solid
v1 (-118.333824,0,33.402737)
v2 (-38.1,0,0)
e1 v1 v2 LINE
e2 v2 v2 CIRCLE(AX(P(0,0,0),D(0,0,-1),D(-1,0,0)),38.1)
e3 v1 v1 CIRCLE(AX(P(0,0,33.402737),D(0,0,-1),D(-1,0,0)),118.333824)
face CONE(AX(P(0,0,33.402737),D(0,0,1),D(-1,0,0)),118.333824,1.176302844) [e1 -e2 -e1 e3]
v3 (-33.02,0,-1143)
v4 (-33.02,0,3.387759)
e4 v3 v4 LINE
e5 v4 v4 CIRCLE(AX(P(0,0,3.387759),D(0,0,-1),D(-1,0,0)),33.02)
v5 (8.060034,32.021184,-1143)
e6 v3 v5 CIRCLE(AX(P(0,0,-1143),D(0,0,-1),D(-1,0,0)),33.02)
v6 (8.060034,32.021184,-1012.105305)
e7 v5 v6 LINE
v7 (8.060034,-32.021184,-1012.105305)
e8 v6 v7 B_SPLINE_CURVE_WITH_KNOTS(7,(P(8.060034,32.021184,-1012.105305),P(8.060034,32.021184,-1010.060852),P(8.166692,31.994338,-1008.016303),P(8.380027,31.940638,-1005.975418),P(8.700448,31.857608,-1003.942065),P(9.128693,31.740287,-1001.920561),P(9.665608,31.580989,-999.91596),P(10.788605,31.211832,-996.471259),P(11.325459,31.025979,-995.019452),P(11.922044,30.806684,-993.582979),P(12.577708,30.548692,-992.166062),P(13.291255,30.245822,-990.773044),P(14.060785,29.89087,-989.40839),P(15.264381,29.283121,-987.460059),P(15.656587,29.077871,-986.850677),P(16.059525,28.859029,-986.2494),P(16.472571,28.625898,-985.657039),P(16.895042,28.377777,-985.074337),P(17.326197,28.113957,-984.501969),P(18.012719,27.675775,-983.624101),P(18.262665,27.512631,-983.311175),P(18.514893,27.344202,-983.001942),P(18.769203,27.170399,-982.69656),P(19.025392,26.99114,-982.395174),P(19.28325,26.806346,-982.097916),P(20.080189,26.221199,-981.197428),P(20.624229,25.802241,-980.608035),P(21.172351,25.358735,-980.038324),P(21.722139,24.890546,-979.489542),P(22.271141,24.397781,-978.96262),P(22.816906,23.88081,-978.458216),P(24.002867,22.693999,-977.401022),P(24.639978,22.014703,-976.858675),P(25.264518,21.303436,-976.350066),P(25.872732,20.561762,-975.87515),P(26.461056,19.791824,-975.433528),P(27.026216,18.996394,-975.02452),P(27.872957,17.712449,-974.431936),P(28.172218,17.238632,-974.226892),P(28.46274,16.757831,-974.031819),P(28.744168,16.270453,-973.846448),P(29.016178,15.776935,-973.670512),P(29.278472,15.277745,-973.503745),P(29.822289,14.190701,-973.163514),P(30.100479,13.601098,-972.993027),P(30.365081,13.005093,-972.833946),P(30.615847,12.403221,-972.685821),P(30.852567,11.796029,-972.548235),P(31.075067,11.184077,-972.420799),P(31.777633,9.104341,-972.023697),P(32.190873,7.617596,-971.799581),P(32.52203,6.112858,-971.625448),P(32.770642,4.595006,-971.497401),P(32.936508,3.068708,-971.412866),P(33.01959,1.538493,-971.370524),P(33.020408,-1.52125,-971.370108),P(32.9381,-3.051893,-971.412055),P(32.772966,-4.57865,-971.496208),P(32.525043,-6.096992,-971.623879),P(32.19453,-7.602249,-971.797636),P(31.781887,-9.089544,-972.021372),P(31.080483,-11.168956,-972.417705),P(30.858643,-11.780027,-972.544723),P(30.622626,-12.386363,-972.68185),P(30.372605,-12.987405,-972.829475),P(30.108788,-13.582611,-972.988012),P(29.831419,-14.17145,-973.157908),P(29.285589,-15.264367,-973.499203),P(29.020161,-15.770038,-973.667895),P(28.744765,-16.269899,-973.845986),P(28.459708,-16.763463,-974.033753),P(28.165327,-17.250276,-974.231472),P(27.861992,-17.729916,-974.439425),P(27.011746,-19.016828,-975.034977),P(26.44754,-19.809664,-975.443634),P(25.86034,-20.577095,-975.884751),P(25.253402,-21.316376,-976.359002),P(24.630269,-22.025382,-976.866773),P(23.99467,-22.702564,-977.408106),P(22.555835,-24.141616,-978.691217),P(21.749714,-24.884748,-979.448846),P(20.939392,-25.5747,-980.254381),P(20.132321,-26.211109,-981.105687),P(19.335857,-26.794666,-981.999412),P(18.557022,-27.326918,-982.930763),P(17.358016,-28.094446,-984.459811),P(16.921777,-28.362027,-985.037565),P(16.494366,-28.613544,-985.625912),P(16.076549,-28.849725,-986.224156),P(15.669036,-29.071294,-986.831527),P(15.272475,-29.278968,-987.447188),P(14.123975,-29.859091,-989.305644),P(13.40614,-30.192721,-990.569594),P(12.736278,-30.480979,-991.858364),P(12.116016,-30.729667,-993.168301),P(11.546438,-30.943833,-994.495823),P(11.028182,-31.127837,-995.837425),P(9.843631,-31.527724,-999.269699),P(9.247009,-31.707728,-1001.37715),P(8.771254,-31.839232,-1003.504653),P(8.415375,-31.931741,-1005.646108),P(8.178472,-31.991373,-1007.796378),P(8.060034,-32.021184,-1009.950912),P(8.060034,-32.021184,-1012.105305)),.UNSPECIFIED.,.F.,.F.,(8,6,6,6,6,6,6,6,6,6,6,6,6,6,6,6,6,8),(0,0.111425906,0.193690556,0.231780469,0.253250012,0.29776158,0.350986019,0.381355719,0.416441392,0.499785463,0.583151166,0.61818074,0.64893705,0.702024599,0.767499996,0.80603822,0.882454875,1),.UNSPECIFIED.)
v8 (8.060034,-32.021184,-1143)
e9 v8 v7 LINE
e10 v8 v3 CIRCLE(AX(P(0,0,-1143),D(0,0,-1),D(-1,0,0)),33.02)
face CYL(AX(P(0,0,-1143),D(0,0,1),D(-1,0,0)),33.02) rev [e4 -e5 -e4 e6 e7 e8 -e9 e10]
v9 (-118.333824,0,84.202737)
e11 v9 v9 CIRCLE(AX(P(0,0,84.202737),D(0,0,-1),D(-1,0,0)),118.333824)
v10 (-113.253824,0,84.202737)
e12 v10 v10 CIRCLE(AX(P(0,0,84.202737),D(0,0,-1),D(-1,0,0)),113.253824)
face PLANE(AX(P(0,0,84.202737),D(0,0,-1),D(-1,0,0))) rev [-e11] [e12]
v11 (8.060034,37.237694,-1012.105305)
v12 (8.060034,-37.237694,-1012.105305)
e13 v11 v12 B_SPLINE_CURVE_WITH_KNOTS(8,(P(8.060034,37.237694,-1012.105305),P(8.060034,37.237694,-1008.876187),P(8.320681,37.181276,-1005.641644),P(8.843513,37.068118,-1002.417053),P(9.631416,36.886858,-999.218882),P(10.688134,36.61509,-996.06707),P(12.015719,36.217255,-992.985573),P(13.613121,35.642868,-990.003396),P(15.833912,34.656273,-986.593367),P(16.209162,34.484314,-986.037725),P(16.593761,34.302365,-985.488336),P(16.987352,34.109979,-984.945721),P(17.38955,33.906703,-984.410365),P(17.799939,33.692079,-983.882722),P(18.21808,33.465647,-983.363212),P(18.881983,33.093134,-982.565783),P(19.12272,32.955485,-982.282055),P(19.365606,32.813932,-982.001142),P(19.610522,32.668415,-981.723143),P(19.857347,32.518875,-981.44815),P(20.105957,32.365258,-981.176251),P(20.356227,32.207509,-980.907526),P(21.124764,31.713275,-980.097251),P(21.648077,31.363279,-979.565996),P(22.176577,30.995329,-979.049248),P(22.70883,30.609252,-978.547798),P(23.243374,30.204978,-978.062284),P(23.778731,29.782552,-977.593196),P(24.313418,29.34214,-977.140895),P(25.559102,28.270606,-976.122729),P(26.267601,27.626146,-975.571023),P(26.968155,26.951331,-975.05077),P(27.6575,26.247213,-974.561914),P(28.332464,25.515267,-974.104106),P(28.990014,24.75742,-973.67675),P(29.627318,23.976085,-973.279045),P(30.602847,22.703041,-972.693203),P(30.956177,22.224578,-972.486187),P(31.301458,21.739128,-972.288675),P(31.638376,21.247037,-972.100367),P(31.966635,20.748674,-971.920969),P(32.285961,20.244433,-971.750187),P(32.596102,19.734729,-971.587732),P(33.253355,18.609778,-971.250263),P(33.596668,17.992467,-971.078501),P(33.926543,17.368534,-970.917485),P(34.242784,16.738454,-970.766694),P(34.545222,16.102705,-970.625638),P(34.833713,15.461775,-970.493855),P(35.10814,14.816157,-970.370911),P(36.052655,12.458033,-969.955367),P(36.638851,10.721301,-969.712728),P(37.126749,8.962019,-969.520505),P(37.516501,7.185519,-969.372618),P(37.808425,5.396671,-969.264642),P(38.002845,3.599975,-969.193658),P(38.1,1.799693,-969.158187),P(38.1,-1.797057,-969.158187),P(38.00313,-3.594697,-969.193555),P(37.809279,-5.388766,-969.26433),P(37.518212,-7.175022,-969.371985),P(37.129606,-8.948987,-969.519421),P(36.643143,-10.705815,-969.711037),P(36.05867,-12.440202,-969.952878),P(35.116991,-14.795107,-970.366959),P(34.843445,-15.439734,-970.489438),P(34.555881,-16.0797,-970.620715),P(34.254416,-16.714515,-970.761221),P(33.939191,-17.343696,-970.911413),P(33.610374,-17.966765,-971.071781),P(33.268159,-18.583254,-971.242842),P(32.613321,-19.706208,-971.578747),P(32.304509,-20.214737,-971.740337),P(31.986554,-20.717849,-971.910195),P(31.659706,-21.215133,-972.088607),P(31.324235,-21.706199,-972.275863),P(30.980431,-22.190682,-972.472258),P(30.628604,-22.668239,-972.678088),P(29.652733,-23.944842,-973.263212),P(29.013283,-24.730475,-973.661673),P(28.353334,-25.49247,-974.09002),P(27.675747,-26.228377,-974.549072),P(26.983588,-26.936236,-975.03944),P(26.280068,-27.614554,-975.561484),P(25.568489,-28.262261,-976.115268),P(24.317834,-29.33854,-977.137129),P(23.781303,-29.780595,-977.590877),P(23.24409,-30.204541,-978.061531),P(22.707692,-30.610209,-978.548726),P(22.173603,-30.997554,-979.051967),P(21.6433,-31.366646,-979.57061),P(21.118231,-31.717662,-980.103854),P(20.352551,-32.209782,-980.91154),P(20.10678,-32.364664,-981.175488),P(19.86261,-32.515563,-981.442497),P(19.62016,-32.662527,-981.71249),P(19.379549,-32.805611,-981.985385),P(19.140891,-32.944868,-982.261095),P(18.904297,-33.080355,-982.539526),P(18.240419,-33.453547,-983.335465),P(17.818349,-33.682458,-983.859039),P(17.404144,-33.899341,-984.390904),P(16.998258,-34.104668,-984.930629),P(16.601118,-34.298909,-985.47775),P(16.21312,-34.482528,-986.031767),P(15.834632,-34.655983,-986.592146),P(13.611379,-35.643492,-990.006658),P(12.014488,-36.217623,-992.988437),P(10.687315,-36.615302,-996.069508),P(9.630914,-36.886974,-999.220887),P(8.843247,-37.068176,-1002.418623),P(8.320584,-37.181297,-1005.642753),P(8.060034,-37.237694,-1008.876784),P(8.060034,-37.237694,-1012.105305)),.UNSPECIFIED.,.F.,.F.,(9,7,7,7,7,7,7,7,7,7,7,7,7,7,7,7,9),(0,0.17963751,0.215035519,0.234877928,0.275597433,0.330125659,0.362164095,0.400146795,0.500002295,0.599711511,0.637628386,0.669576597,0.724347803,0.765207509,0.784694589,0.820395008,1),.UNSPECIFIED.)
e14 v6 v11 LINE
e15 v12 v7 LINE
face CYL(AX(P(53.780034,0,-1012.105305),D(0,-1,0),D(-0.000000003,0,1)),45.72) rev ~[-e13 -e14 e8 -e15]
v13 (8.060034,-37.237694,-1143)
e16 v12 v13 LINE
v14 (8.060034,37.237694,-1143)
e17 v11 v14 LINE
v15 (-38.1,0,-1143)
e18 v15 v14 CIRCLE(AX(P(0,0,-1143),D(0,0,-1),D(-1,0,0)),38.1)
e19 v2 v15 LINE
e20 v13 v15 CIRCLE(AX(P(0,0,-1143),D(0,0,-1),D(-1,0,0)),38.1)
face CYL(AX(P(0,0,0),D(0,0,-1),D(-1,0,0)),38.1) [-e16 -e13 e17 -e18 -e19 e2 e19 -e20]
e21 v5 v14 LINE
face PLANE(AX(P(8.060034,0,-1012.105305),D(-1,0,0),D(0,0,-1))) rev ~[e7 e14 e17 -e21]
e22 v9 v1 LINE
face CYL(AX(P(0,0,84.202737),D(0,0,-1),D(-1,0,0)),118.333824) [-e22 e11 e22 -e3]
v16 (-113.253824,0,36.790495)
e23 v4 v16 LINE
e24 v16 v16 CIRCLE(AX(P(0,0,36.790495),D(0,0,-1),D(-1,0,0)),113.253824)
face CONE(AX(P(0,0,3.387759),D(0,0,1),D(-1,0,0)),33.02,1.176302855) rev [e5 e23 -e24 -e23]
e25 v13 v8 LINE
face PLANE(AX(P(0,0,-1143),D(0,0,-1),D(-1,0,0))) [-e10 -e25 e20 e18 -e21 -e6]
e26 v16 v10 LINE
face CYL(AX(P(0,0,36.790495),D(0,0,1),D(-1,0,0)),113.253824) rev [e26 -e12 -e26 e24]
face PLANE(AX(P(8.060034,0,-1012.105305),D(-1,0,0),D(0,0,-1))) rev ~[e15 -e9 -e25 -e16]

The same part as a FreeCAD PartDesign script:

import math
import FreeCAD as App
import Part
import Sketcher

V = App.Vector
Q = App.Units.Quantity

doc = App.newDocument("Part")
params = doc.addObject("Spreadsheet::Sheet", "Params")
for row, (alias, value) in enumerate([
    ("sketch1_height", "2 in"),
    ("sketch1_height2", "45 in"),
    ("sketch1_width", "0.2 in"),
    ("revolution_angle", "360 deg"),
    ("sketch2_radius", "1.8 in"),
    ("pocket1_length", "5 in"),
], start=1):
    params.set(f"A{row}", alias)
    params.set(f"B{row}", "=" + value)
    params.setAlias(f"B{row}", alias)

body = doc.addObject("PartDesign::Body", "Body")

sketch1 = body.newObject("Sketcher::SketchObject", "Sketch")
sketch1.AttachmentSupport = (doc.getObject("XZ_Plane"), [""])
sketch1.MapMode = "FlatFace"
sketch1.addGeometry([
    Part.LineSegment(V(-113, 37, 0), V(-113, 84, 0)),
    Part.LineSegment(V(-113, 84, 0), V(-118, 84, 0)),
    Part.LineSegment(V(-118, 84, 0), V(-118, 33, 0)),
    Part.LineSegment(V(-118, 33, 0), V(-38, 0, 0)),
    Part.LineSegment(V(-38, 0, 0), V(-38, -1143, 0)),
    Part.LineSegment(V(-38, -1143, 0), V(-33, -1143, 0)),
    Part.LineSegment(V(-33, -1143, 0), V(-33, 3, 0)),
    Part.LineSegment(V(-33, 3, 0), V(-113, 37, 0)),
], False)
sketch1.addConstraint([
    Sketcher.Constraint("Coincident", 0, 2, 1, 1),
    Sketcher.Constraint("Coincident", 1, 2, 2, 1),
    Sketcher.Constraint("Coincident", 2, 2, 3, 1),
    Sketcher.Constraint("Coincident", 3, 2, 4, 1),
    Sketcher.Constraint("Coincident", 4, 2, 5, 1),
    Sketcher.Constraint("Coincident", 5, 2, 6, 1),
    Sketcher.Constraint("Coincident", 6, 2, 7, 1),
    Sketcher.Constraint("Coincident", 7, 2, 0, 1),
    Sketcher.Constraint("Vertical", 0),
    Sketcher.Constraint("Horizontal", 1),
    Sketcher.Constraint("Vertical", 2),
    Sketcher.Constraint("Vertical", 4),
    Sketcher.Constraint("Horizontal", 5),
    Sketcher.Constraint("Vertical", 6),
    Sketcher.Constraint("PointOnObject", 3, 2, -1),
    Sketcher.Constraint("Parallel", 3, 7),
    Sketcher.Constraint("Equal", 1, 5),
    Sketcher.Constraint("DistanceY", 2, 2, 2, 1, Q("2 in")),
    Sketcher.Constraint("DistanceY", 4, 2, 4, 1, Q("45 in")),
    Sketcher.Constraint("DistanceX", 1, 2, 1, 1, Q("0.2 in")),
    Sketcher.Constraint("DistanceX", 3, 2, -1, 1, Q("1.5 in")),
    Sketcher.Constraint("Distance", 3, 86.909202),
    Sketcher.Constraint("DistanceY", 6, 1, 6, 2, 1146.387759),
    Sketcher.Constraint("DistanceY", 6, 2, 2, 2, 30.014978),
])
sketch1.setExpression("Constraints[17]", "Params.sketch1_height")
sketch1.setExpression("Constraints[18]", "Params.sketch1_height2")
sketch1.setExpression("Constraints[19]", "Params.sketch1_width")
revolution = body.newObject("PartDesign::Revolution", "Revolution")
revolution.Profile = sketch1
revolution.ReferenceAxis = (sketch1, ["V_Axis"])
revolution.setExpression("Angle", "Params.revolution_angle")

sketch2 = body.newObject("Sketcher::SketchObject", "Sketch001")
sketch2.AttachmentSupport = (doc.getObject("XZ_Plane"), [""])
sketch2.MapMode = "FlatFace"
sketch2.addGeometry([
    Part.LineSegment(V(8.1, -1012.1, 0), V(8.1, -1153.5, 0)),
    Part.LineSegment(V(8.1, -1153.5, 0), V(58.5, -1153.5, 0)),
    Part.LineSegment(V(58.5, -1153.5, 0), V(58.5, -966.4, 0)),
    Part.LineSegment(V(58.5, -966.4, 0), V(53.8, -966.4, 0)),
    Part.ArcOfCircle(Part.Circle(V(53.8, -1012.1, 0), V(0, 0, 1), 45.7), math.radians(90), math.radians(180)),
], False)
sketch2.addConstraint([
    Sketcher.Constraint("Coincident", 0, 2, 1, 1),
    Sketcher.Constraint("Coincident", 1, 2, 2, 1),
    Sketcher.Constraint("Coincident", 2, 2, 3, 1),
    Sketcher.Constraint("Tangent", 3, 2, 4, 1),
    Sketcher.Constraint("Tangent", 4, 2, 0, 1),
    Sketcher.Constraint("Vertical", 0),
    Sketcher.Constraint("Horizontal", 1),
    Sketcher.Constraint("Vertical", 2),
    Sketcher.Constraint("Horizontal", 3),
    Sketcher.Constraint("Radius", 4, Q("1.8 in")),
    Sketcher.Constraint("DistanceX", 1, 1, 1, 2, 50.397113),
    Sketcher.Constraint("DistanceY", 0, 2, 0, 1, 141.405146),
    Sketcher.Constraint("DistanceY", 0, 2, -1, 1, 1153.510451),
    Sketcher.Constraint("DistanceX", -1, 1, 4, 3, 53.780034),
])
sketch2.setExpression("Constraints[9]", "Params.sketch2_radius")
pocket1 = body.newObject("PartDesign::Pocket", "Pocket")
pocket1.Profile = sketch2
pocket1.setExpression("Length", "Params.pocket1_length")
pocket1.Midplane = True

doc.recompute()
